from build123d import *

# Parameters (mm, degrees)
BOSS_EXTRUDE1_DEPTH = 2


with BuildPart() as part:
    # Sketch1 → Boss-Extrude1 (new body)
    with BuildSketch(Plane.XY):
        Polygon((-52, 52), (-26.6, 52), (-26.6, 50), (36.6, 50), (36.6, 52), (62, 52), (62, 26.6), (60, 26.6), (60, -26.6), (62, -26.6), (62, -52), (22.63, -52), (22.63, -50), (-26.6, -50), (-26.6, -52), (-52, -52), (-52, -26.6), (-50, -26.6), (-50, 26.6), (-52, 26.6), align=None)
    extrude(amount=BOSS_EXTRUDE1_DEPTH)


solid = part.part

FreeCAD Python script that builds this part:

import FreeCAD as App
import Part
import Sketcher
from FreeCAD import Vector


def add_polygon(sketch, points):
    """Adds a closed chain of lines whose ends are joined by coincident constraints."""
    first, n = sketch.GeometryCount, len(points)
    for a, b in zip(points, points[1:] + points[:1]):
        sketch.addGeometry(Part.LineSegment(App.Vector(*a, 0), App.Vector(*b, 0)), False)
    for i in range(n):
        sketch.addConstraint(Sketcher.Constraint("Coincident", first + i, 2, first + (i + 1) % n, 1))

doc = App.newDocument("Part")
body = doc.addObject("PartDesign::Body", "Body")

# Sketch on XY plane
sketch1 = body.newObject("Sketcher::SketchObject", "Sketch")
sketch1.AttachmentSupport = (doc.getObject("XY_Plane"), [""])
sketch1.MapMode = "FlatFace"
add_polygon(sketch1, [(-26.6, 52), (-52, 52), (-52, 26.6), (-50, 26.6), (-50, -26.6), (-52, -26.6), (-52, -52), (-26.6, -52), (-26.6, -50), (22.6, -50), (22.6, -52), (62, -52), (62, -26.6), (60, -26.6), (60, 26.6), (62, 26.6), (62, 52), (36.6, 52), (36.6, 50), (-26.6, 50)])  # lines 0-19
sketch1.addConstraint([
    Sketcher.Constraint("Horizontal", 0),
    Sketcher.Constraint("Vertical", 1),
    Sketcher.Constraint("Horizontal", 2),
    Sketcher.Constraint("Vertical", 3),
    Sketcher.Constraint("Horizontal", 4),
    Sketcher.Constraint("Vertical", 5),
    Sketcher.Constraint("Horizontal", 6),
    Sketcher.Constraint("Vertical", 7),
    Sketcher.Constraint("Horizontal", 8),
    Sketcher.Constraint("Vertical", 9),
    Sketcher.Constraint("Horizontal", 10),
    Sketcher.Constraint("Vertical", 11),
    Sketcher.Constraint("Horizontal", 12),
    Sketcher.Constraint("Vertical", 13),
    Sketcher.Constraint("Horizontal", 14),
    Sketcher.Constraint("Vertical", 15),
    Sketcher.Constraint("Horizontal", 16),
    Sketcher.Constraint("Vertical", 17),
    Sketcher.Constraint("Horizontal", 18),
    Sketcher.Constraint("Vertical", 19),
    Sketcher.Constraint("Symmetric", 1, 2, 4, 2, -1),
    Sketcher.Constraint("Symmetric", 11, 2, 14, 2, -1),
    Sketcher.Constraint("Symmetric", 7, 2, 18, 2, -1),
    Sketcher.Constraint("Horizontal", 6, 2, 9, 2),
    Sketcher.Constraint("Horizontal", 4, 2, 11, 2),
    Sketcher.Constraint("Horizontal", 0, 2, 15, 2),
    Sketcher.Constraint("Equal", 4, 12),
    Sketcher.Constraint("Equal", 6, 16),
    Sketcher.Constraint("Equal", 16, 1),
    Sketcher.Constraint("Equal", 1, 5),
    Sketcher.Constraint("Equal", 14, 7),
    Sketcher.Constraint("DistanceX", 2, 1, 2, 2, 2.0),
    Sketcher.Constraint("DistanceX", 0, 2, 0, 1, 25.4),
    Sketcher.Constraint("DistanceX", 18, 2, 18, 1, 63.2),
    Sketcher.Constraint("DistanceY", 3, 2, 3, 1, 53.2),
    Sketcher.Constraint("DistanceX", 0, 2, -1, 1, 52.0),
    Sketcher.Constraint("DistanceX", 8, 1, 8, 2, 49.23),
])
pad1 = body.newObject("PartDesign::Pad", "Pad")
pad1.Profile = sketch1
pad1.Length = 2

doc.recompute()
